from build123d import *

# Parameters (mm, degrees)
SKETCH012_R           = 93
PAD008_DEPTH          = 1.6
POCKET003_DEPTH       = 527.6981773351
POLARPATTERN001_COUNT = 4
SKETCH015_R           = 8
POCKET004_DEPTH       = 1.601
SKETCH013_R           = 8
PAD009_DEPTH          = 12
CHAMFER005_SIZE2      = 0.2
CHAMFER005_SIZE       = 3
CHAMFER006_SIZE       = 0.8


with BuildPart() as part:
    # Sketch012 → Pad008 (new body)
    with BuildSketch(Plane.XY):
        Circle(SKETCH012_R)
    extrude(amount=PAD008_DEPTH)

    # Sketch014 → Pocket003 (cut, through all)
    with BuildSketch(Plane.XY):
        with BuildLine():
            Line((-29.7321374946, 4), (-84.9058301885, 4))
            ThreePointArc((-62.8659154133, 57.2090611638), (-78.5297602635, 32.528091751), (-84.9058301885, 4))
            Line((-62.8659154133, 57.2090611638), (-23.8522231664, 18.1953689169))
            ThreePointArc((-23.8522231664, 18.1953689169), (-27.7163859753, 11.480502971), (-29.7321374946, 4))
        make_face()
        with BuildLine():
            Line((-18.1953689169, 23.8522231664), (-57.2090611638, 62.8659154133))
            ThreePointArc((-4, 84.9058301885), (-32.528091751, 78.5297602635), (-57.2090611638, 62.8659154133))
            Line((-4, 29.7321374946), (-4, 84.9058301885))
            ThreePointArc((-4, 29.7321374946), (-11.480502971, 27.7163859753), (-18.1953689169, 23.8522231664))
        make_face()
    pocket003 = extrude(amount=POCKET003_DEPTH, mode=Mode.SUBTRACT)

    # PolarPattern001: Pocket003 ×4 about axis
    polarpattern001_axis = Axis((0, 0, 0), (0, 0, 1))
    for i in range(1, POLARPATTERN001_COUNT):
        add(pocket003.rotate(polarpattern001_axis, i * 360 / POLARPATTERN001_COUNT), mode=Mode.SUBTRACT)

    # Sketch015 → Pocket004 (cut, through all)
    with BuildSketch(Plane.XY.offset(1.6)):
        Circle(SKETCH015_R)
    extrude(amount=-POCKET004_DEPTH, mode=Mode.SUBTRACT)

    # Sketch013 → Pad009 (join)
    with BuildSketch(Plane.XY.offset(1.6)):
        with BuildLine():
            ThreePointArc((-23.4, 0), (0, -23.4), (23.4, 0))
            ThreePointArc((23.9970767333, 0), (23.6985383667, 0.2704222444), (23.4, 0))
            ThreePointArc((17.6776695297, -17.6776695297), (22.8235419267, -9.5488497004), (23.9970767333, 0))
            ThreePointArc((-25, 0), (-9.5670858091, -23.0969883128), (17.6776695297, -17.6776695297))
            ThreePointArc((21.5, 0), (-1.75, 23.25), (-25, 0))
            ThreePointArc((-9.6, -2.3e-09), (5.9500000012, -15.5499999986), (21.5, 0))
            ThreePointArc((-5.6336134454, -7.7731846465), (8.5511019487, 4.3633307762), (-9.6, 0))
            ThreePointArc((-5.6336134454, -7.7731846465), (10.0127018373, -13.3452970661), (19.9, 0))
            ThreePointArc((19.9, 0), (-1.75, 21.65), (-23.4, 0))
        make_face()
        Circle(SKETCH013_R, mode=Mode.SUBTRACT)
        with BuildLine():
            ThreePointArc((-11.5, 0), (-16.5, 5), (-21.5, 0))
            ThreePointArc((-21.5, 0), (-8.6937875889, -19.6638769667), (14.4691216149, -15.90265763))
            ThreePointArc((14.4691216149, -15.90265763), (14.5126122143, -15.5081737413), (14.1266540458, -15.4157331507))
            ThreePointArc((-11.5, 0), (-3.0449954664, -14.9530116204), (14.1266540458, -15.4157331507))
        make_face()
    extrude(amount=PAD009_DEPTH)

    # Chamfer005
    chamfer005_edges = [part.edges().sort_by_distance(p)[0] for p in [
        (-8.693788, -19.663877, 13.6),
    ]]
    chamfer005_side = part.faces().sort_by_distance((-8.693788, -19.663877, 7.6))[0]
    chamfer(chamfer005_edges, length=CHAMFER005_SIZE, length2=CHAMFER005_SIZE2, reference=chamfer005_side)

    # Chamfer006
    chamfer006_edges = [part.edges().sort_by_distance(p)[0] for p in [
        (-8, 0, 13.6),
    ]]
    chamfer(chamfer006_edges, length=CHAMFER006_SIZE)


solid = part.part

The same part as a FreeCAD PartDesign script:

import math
import FreeCAD as App
import Part
import Sketcher
from FreeCAD import Vector
Q = App.Units.Quantity


def edges_at(feature, points):
    """Names of the edges that pass closest to the given points."""
    edges = feature.Shape.Edges
    near = lambda p: min(range(len(edges)), key=lambda i: edges[i].distToShape(Part.Vertex(*p))[0])
    return sorted({f"Edge{near(p) + 1}" for p in points})

doc = App.newDocument("Part")
body = doc.addObject("PartDesign::Body", "Body")

sketch1 = body.newObject("Sketcher::SketchObject", "Sketch")
sketch1.AttachmentSupport = (doc.getObject("XY_Plane"), [""])
sketch1.MapMode = "FlatFace"
sketch1.addGeometry(Part.Circle(Vector(0, 0, 0), Vector(0, 0, 1), 93), False)
sketch1.addConstraint(Sketcher.Constraint("Coincident", 0, 3, -1, 1))
sketch1.addConstraint(Sketcher.Constraint("Diameter", 0, Q("186 mm")))
pad1 = body.newObject("PartDesign::Pad", "Pad")
pad1.Profile = sketch1
pad1.Length = 1.6

sketch2 = body.newObject("Sketcher::SketchObject", "Sketch001")
sketch2.AttachmentSupport = (doc.getObject("XY_Plane"), [""])
sketch2.MapMode = "FlatFace"
sketch2.addGeometry(Part.LineSegment(Vector(-85, 4, 0), Vector(-30, 4, 0)), False)
sketch2.addGeometry(Part.ArcOfCircle(Part.Circle(Vector(0, 0, 0), Vector(0, 0, 1), 30), math.radians(143), math.radians(172)), False)
sketch2.addGeometry(Part.LineSegment(Vector(-24, 18, 0), Vector(-63, 57, 0)), False)
sketch2.addGeometry(Part.ArcOfCircle(Part.Circle(Vector(0, 0, 0), Vector(0, 0, 1), 85), math.radians(138), math.radians(177)), False)
sketch2.addGeometry(Part.LineSegment(Vector(-57, 63, 0), Vector(-18, 24, 0)), False)
sketch2.addGeometry(Part.ArcOfCircle(Part.Circle(Vector(0, 0, 0), Vector(0, 0, 1), 30), math.radians(98), math.radians(127)), False)
sketch2.addGeometry(Part.LineSegment(Vector(-4, 30, 0), Vector(-4, 85, 0)), False)
sketch2.addGeometry(Part.ArcOfCircle(Part.Circle(Vector(0, 0, 0), Vector(0, 0, 1), 85), math.radians(93), math.radians(132)), False)
sketch2.addConstraint(Sketcher.Constraint("Coincident", 0, 2, 1, 2))
sketch2.addConstraint(Sketcher.Constraint("Coincident", 1, 1, 2, 1))
sketch2.addConstraint(Sketcher.Constraint("Coincident", 2, 2, 3, 1))
sketch2.addConstraint(Sketcher.Constraint("Coincident", 3, 2, 0, 1))
sketch2.addConstraint(Sketcher.Constraint("Coincident", 4, 2, 5, 2))
sketch2.addConstraint(Sketcher.Constraint("Coincident", 5, 1, 6, 1))
sketch2.addConstraint(Sketcher.Constraint("Coincident", 6, 2, 7, 1))
sketch2.addConstraint(Sketcher.Constraint("Coincident", 7, 2, 4, 1))
sketch2.addConstraint(Sketcher.Constraint("Horizontal", 0))
sketch2.addConstraint(Sketcher.Constraint("Vertical", 6))
sketch2.addConstraint(Sketcher.Constraint("Coincident", 1, 3, -1, 1))
sketch2.addConstraint(Sketcher.Constraint("Coincident", 3, 3, -1, 1))
sketch2.addConstraint(Sketcher.Constraint("Coincident", 5, 3, -1, 1))
sketch2.addConstraint(Sketcher.Constraint("Coincident", 7, 3, -1, 1))
sketch2.addConstraint(Sketcher.Constraint("Equal", 1, 5))
sketch2.addConstraint(Sketcher.Constraint("Equal", 3, 7))
sketch2.addConstraint(Sketcher.Constraint("Parallel", 2, 4))
sketch2.addConstraint(Sketcher.Constraint("Equal", 0, 6))
sketch2.addConstraint(Sketcher.Constraint("Equal", 2, 4))
sketch2.addConstraint(Sketcher.Constraint("Radius", 1, Q("30 mm")))
sketch2.addConstraint(Sketcher.Constraint("Radius", 3, Q("85 mm")))
sketch2.addConstraint(Sketcher.Constraint("Angle", 2, Q("135 deg")))
sketch2.addConstraint(Sketcher.Constraint("DistanceY", -1, 1, 0, 2, Q("4 mm")))
sketch2.addConstraint(Sketcher.Constraint("DistanceY", -1, 1, 1, 1, Q("18.195369 mm")))
pocket1 = body.newObject("PartDesign::Pocket", "Pocket")
pocket1.Profile = sketch2
pocket1.Type = "ThroughAll"
pocket1.Reversed = True
doc.recompute()

polarpattern = body.newObject("PartDesign::PolarPattern", "PolarPattern")
polarpattern.Originals = [pocket1]
polarpattern.Axis = (doc.getObject("Z_Axis"), [""])
polarpattern.Angle = 360
polarpattern.Occurrences = 4
body.Tip = polarpattern

sketch3 = body.newObject("Sketcher::SketchObject", "Sketch002")
sketch3.AttachmentSupport = (doc.getObject("XY_Plane"), [""])
sketch3.MapMode = "FlatFace"
sketch3.AttachmentOffset = App.Placement(Vector(0, 0, 1.6), App.Rotation())
sketch3.addGeometry(Part.Circle(Vector(0, 0, 0), Vector(0, 0, 1), 8), False)
sketch3.addConstraint(Sketcher.Constraint("Coincident", 0, 3, -1, 1))
sketch3.addConstraint(Sketcher.Constraint("Diameter", 0, Q("16 mm")))
pocket2 = body.newObject("PartDesign::Pocket", "Pocket001")
pocket2.Profile = sketch3
pocket2.Type = "ThroughAll"

sketch4 = body.newObject("Sketcher::SketchObject", "Sketch003")
sketch4.AttachmentSupport = (doc.getObject("XY_Plane"), [""])
sketch4.MapMode = "FlatFace"
sketch4.AttachmentOffset = App.Placement(Vector(0, 0, 1.6), App.Rotation())
sketch4.addGeometry(Part.ArcOfCircle(Part.Circle(Vector(0, 0, 0), Vector(0, 0, 1), 23.4), math.radians(180), math.radians(360)), False)
sketch4.addGeometry(Part.ArcOfCircle(Part.Circle(Vector(-1.75, 0, 0), Vector(0, 0, 1), 21.65), math.radians(0), math.radians(180)), False)
sketch4.addGeometry(Part.ArcOfCircle(Part.Circle(Vector(5.95, 0, 0), Vector(0, 0, 1), 13.95), math.radians(-146), math.radians(0)), False)
sketch4.addGeometry(Part.ArcOfCircle(Part.Circle(Vector(0, 0, 0), Vector(0, 0, 1), 9.6), math.radians(-126), math.radians(180)), False)
sketch4.addGeometry(Part.ArcOfCircle(Part.Circle(Vector(5.95, 0, 0), Vector(0, 0, 1), 15.55), math.radians(-180), math.radians(0)), False)
sketch4.addGeometry(Part.ArcOfCircle(Part.Circle(Vector(-1.75, 0, 0), Vector(0, 0, 1), 23.25), math.radians(0), math.radians(180)), False)
sketch4.addGeometry(Part.ArcOfCircle(Part.Circle(Vector(0, 0, 0), Vector(0, 0, 1), 25), math.radians(180), math.radians(315)), False)
sketch4.addGeometry(Part.ArcOfCircle(Part.Circle(Vector(2.16, -2.16, 0), Vector(0, 0, 1), 21.94), math.radians(-45), math.radians(6)), False)
sketch4.addGeometry(Part.ArcOfCircle(Part.Circle(Vector(23.7, -0.03, 0), Vector(0, 0, 1), 0.3), math.radians(6), math.radians(174)), False)
sketch4.addGeometry(Part.Circle(Vector(0, 0, 0), Vector(0, 0, 1), 8), False)
sketch4.addGeometry(Part.ArcOfCircle(Part.Circle(Vector(-16.5, 0, 0), Vector(0, 0, 1), 5), math.radians(0), math.radians(180)), False)
sketch4.addGeometry(Part.ArcOfCircle(Part.Circle(Vector(0, 0, 0), Vector(0, 0, 1), 21.5), math.radians(180), math.radians(312)), False)
sketch4.addGeometry(Part.ArcOfCircle(Part.Circle(Vector(14.27, -15.68, 0), Vector(0, 0, 1), 0.3), math.radians(-48), math.radians(118)), False)
sketch4.addGeometry(Part.ArcOfCircle(Part.Circle(Vector(5.95, 0, 0), Vector(0, 0, 1), 17.45), math.radians(-180), math.radians(-62)), False)
sketch4.addConstraint(Sketcher.Constraint("Tangent", 0, 1, 1, 2))
sketch4.addConstraint(Sketcher.Constraint("Tangent", 1, 1, 2, 2))
sketch4.addConstraint(Sketcher.Constraint("Coincident", 2, 1, 3, 1))
sketch4.addConstraint(Sketcher.Constraint("Tangent", 3, 2, 4, 1))
sketch4.addConstraint(Sketcher.Constraint("Tangent", 4, 2, 5, 1))
sketch4.addConstraint(Sketcher.Constraint("Tangent", 5, 2, 6, 1))
sketch4.addConstraint(Sketcher.Constraint("Tangent", 6, 2, 7, 1))
sketch4.addConstraint(Sketcher.Constraint("Tangent", 7, 2, 8, 1))
sketch4.addConstraint(Sketcher.Constraint("Coincident", 8, 2, 0, 2))
sketch4.addConstraint(Sketcher.Constraint("Tangent", 10, 2, 11, 1))
sketch4.addConstraint(Sketcher.Constraint("Tangent", 11, 2, 12, 1))
sketch4.addConstraint(Sketcher.Constraint("Tangent", 12, 2, 13, 2))
sketch4.addConstraint(Sketcher.Constraint("Tangent", 13, 1, 10, 1))
sketch4.addConstraint(Sketcher.Constraint("Coincident", 0, 3, -1, 1))
sketch4.addConstraint(Sketcher.Constraint("Coincident", 3, 3, -1, 1))
sketch4.addConstraint(Sketcher.Constraint("Coincident", 6, 3, -1, 1))
sketch4.addConstraint(Sketcher.Constraint("Coincident", 9, 3, -1, 1))
sketch4.addConstraint(Sketcher.Constraint("Coincident", 11, 3, -1, 1))
sketch4.addConstraint(Sketcher.Constraint("Coincident", 4, 3, 2, 3))
sketch4.addConstraint(Sketcher.Constraint("Coincident", 5, 3, 1, 3))
sketch4.addConstraint(Sketcher.Constraint("Coincident", 13, 3, 2, 3))
sketch4.addConstraint(Sketcher.Constraint("Equal", 8, 12))
sketch4.addConstraint(Sketcher.Constraint("Symmetric", 4, 2, 10, 2, -1, 1))
sketch4.addConstraint(Sketcher.Constraint("PointOnObject", 1, 3, -1))
sketch4.addConstraint(Sketcher.Constraint("PointOnObject", 2, 3, -1))
sketch4.addConstraint(Sketcher.Constraint("PointOnObject", 7, 2, -1))
sketch4.addConstraint(Sketcher.Constraint("PointOnObject", 8, 2, -1))
sketch4.addConstraint(Sketcher.Constraint("Diameter", 9, Q("16 mm")))
sketch4.addConstraint(Sketcher.Constraint("Radius", 6, Q("25 mm")))
sketch4.addConstraint(Sketcher.Constraint("Radius", 10, Q("5 mm")))
sketch4.addConstraint(Sketcher.Constraint("Radius", 0, Q("23.4 mm")))
sketch4.addConstraint(Sketcher.Constraint("Radius", 3, Q("9.6 mm")))
sketch4.addConstraint(Sketcher.Constraint("Radius", 8, Q("0.3 mm")))
sketch4.addConstraint(Sketcher.Constraint("Radius", 11, Q("21.5 mm")))
sketch4.addConstraint(Sketcher.Constraint("Radius", 7, Q("21.940778 mm")))
pad2 = body.newObject("PartDesign::Pad", "Pad001")
pad2.Profile = sketch4
pad2.Length = 12
doc.recompute()

chamfer = body.newObject("PartDesign::Chamfer", "Chamfer")
chamfer.Base = (pad2, edges_at(pad2, [(-8.694, -19.664, 13.6)]))
chamfer.ChamferType = "Two distances"
chamfer.Size = 3
chamfer.Size2 = 0.2
doc.recompute()

chamfer2 = body.newObject("PartDesign::Chamfer", "Chamfer001")
chamfer2.Base = (chamfer, edges_at(chamfer, [(-8, 0, 13.6)]))
chamfer2.Size = 0.8

doc.recompute()
